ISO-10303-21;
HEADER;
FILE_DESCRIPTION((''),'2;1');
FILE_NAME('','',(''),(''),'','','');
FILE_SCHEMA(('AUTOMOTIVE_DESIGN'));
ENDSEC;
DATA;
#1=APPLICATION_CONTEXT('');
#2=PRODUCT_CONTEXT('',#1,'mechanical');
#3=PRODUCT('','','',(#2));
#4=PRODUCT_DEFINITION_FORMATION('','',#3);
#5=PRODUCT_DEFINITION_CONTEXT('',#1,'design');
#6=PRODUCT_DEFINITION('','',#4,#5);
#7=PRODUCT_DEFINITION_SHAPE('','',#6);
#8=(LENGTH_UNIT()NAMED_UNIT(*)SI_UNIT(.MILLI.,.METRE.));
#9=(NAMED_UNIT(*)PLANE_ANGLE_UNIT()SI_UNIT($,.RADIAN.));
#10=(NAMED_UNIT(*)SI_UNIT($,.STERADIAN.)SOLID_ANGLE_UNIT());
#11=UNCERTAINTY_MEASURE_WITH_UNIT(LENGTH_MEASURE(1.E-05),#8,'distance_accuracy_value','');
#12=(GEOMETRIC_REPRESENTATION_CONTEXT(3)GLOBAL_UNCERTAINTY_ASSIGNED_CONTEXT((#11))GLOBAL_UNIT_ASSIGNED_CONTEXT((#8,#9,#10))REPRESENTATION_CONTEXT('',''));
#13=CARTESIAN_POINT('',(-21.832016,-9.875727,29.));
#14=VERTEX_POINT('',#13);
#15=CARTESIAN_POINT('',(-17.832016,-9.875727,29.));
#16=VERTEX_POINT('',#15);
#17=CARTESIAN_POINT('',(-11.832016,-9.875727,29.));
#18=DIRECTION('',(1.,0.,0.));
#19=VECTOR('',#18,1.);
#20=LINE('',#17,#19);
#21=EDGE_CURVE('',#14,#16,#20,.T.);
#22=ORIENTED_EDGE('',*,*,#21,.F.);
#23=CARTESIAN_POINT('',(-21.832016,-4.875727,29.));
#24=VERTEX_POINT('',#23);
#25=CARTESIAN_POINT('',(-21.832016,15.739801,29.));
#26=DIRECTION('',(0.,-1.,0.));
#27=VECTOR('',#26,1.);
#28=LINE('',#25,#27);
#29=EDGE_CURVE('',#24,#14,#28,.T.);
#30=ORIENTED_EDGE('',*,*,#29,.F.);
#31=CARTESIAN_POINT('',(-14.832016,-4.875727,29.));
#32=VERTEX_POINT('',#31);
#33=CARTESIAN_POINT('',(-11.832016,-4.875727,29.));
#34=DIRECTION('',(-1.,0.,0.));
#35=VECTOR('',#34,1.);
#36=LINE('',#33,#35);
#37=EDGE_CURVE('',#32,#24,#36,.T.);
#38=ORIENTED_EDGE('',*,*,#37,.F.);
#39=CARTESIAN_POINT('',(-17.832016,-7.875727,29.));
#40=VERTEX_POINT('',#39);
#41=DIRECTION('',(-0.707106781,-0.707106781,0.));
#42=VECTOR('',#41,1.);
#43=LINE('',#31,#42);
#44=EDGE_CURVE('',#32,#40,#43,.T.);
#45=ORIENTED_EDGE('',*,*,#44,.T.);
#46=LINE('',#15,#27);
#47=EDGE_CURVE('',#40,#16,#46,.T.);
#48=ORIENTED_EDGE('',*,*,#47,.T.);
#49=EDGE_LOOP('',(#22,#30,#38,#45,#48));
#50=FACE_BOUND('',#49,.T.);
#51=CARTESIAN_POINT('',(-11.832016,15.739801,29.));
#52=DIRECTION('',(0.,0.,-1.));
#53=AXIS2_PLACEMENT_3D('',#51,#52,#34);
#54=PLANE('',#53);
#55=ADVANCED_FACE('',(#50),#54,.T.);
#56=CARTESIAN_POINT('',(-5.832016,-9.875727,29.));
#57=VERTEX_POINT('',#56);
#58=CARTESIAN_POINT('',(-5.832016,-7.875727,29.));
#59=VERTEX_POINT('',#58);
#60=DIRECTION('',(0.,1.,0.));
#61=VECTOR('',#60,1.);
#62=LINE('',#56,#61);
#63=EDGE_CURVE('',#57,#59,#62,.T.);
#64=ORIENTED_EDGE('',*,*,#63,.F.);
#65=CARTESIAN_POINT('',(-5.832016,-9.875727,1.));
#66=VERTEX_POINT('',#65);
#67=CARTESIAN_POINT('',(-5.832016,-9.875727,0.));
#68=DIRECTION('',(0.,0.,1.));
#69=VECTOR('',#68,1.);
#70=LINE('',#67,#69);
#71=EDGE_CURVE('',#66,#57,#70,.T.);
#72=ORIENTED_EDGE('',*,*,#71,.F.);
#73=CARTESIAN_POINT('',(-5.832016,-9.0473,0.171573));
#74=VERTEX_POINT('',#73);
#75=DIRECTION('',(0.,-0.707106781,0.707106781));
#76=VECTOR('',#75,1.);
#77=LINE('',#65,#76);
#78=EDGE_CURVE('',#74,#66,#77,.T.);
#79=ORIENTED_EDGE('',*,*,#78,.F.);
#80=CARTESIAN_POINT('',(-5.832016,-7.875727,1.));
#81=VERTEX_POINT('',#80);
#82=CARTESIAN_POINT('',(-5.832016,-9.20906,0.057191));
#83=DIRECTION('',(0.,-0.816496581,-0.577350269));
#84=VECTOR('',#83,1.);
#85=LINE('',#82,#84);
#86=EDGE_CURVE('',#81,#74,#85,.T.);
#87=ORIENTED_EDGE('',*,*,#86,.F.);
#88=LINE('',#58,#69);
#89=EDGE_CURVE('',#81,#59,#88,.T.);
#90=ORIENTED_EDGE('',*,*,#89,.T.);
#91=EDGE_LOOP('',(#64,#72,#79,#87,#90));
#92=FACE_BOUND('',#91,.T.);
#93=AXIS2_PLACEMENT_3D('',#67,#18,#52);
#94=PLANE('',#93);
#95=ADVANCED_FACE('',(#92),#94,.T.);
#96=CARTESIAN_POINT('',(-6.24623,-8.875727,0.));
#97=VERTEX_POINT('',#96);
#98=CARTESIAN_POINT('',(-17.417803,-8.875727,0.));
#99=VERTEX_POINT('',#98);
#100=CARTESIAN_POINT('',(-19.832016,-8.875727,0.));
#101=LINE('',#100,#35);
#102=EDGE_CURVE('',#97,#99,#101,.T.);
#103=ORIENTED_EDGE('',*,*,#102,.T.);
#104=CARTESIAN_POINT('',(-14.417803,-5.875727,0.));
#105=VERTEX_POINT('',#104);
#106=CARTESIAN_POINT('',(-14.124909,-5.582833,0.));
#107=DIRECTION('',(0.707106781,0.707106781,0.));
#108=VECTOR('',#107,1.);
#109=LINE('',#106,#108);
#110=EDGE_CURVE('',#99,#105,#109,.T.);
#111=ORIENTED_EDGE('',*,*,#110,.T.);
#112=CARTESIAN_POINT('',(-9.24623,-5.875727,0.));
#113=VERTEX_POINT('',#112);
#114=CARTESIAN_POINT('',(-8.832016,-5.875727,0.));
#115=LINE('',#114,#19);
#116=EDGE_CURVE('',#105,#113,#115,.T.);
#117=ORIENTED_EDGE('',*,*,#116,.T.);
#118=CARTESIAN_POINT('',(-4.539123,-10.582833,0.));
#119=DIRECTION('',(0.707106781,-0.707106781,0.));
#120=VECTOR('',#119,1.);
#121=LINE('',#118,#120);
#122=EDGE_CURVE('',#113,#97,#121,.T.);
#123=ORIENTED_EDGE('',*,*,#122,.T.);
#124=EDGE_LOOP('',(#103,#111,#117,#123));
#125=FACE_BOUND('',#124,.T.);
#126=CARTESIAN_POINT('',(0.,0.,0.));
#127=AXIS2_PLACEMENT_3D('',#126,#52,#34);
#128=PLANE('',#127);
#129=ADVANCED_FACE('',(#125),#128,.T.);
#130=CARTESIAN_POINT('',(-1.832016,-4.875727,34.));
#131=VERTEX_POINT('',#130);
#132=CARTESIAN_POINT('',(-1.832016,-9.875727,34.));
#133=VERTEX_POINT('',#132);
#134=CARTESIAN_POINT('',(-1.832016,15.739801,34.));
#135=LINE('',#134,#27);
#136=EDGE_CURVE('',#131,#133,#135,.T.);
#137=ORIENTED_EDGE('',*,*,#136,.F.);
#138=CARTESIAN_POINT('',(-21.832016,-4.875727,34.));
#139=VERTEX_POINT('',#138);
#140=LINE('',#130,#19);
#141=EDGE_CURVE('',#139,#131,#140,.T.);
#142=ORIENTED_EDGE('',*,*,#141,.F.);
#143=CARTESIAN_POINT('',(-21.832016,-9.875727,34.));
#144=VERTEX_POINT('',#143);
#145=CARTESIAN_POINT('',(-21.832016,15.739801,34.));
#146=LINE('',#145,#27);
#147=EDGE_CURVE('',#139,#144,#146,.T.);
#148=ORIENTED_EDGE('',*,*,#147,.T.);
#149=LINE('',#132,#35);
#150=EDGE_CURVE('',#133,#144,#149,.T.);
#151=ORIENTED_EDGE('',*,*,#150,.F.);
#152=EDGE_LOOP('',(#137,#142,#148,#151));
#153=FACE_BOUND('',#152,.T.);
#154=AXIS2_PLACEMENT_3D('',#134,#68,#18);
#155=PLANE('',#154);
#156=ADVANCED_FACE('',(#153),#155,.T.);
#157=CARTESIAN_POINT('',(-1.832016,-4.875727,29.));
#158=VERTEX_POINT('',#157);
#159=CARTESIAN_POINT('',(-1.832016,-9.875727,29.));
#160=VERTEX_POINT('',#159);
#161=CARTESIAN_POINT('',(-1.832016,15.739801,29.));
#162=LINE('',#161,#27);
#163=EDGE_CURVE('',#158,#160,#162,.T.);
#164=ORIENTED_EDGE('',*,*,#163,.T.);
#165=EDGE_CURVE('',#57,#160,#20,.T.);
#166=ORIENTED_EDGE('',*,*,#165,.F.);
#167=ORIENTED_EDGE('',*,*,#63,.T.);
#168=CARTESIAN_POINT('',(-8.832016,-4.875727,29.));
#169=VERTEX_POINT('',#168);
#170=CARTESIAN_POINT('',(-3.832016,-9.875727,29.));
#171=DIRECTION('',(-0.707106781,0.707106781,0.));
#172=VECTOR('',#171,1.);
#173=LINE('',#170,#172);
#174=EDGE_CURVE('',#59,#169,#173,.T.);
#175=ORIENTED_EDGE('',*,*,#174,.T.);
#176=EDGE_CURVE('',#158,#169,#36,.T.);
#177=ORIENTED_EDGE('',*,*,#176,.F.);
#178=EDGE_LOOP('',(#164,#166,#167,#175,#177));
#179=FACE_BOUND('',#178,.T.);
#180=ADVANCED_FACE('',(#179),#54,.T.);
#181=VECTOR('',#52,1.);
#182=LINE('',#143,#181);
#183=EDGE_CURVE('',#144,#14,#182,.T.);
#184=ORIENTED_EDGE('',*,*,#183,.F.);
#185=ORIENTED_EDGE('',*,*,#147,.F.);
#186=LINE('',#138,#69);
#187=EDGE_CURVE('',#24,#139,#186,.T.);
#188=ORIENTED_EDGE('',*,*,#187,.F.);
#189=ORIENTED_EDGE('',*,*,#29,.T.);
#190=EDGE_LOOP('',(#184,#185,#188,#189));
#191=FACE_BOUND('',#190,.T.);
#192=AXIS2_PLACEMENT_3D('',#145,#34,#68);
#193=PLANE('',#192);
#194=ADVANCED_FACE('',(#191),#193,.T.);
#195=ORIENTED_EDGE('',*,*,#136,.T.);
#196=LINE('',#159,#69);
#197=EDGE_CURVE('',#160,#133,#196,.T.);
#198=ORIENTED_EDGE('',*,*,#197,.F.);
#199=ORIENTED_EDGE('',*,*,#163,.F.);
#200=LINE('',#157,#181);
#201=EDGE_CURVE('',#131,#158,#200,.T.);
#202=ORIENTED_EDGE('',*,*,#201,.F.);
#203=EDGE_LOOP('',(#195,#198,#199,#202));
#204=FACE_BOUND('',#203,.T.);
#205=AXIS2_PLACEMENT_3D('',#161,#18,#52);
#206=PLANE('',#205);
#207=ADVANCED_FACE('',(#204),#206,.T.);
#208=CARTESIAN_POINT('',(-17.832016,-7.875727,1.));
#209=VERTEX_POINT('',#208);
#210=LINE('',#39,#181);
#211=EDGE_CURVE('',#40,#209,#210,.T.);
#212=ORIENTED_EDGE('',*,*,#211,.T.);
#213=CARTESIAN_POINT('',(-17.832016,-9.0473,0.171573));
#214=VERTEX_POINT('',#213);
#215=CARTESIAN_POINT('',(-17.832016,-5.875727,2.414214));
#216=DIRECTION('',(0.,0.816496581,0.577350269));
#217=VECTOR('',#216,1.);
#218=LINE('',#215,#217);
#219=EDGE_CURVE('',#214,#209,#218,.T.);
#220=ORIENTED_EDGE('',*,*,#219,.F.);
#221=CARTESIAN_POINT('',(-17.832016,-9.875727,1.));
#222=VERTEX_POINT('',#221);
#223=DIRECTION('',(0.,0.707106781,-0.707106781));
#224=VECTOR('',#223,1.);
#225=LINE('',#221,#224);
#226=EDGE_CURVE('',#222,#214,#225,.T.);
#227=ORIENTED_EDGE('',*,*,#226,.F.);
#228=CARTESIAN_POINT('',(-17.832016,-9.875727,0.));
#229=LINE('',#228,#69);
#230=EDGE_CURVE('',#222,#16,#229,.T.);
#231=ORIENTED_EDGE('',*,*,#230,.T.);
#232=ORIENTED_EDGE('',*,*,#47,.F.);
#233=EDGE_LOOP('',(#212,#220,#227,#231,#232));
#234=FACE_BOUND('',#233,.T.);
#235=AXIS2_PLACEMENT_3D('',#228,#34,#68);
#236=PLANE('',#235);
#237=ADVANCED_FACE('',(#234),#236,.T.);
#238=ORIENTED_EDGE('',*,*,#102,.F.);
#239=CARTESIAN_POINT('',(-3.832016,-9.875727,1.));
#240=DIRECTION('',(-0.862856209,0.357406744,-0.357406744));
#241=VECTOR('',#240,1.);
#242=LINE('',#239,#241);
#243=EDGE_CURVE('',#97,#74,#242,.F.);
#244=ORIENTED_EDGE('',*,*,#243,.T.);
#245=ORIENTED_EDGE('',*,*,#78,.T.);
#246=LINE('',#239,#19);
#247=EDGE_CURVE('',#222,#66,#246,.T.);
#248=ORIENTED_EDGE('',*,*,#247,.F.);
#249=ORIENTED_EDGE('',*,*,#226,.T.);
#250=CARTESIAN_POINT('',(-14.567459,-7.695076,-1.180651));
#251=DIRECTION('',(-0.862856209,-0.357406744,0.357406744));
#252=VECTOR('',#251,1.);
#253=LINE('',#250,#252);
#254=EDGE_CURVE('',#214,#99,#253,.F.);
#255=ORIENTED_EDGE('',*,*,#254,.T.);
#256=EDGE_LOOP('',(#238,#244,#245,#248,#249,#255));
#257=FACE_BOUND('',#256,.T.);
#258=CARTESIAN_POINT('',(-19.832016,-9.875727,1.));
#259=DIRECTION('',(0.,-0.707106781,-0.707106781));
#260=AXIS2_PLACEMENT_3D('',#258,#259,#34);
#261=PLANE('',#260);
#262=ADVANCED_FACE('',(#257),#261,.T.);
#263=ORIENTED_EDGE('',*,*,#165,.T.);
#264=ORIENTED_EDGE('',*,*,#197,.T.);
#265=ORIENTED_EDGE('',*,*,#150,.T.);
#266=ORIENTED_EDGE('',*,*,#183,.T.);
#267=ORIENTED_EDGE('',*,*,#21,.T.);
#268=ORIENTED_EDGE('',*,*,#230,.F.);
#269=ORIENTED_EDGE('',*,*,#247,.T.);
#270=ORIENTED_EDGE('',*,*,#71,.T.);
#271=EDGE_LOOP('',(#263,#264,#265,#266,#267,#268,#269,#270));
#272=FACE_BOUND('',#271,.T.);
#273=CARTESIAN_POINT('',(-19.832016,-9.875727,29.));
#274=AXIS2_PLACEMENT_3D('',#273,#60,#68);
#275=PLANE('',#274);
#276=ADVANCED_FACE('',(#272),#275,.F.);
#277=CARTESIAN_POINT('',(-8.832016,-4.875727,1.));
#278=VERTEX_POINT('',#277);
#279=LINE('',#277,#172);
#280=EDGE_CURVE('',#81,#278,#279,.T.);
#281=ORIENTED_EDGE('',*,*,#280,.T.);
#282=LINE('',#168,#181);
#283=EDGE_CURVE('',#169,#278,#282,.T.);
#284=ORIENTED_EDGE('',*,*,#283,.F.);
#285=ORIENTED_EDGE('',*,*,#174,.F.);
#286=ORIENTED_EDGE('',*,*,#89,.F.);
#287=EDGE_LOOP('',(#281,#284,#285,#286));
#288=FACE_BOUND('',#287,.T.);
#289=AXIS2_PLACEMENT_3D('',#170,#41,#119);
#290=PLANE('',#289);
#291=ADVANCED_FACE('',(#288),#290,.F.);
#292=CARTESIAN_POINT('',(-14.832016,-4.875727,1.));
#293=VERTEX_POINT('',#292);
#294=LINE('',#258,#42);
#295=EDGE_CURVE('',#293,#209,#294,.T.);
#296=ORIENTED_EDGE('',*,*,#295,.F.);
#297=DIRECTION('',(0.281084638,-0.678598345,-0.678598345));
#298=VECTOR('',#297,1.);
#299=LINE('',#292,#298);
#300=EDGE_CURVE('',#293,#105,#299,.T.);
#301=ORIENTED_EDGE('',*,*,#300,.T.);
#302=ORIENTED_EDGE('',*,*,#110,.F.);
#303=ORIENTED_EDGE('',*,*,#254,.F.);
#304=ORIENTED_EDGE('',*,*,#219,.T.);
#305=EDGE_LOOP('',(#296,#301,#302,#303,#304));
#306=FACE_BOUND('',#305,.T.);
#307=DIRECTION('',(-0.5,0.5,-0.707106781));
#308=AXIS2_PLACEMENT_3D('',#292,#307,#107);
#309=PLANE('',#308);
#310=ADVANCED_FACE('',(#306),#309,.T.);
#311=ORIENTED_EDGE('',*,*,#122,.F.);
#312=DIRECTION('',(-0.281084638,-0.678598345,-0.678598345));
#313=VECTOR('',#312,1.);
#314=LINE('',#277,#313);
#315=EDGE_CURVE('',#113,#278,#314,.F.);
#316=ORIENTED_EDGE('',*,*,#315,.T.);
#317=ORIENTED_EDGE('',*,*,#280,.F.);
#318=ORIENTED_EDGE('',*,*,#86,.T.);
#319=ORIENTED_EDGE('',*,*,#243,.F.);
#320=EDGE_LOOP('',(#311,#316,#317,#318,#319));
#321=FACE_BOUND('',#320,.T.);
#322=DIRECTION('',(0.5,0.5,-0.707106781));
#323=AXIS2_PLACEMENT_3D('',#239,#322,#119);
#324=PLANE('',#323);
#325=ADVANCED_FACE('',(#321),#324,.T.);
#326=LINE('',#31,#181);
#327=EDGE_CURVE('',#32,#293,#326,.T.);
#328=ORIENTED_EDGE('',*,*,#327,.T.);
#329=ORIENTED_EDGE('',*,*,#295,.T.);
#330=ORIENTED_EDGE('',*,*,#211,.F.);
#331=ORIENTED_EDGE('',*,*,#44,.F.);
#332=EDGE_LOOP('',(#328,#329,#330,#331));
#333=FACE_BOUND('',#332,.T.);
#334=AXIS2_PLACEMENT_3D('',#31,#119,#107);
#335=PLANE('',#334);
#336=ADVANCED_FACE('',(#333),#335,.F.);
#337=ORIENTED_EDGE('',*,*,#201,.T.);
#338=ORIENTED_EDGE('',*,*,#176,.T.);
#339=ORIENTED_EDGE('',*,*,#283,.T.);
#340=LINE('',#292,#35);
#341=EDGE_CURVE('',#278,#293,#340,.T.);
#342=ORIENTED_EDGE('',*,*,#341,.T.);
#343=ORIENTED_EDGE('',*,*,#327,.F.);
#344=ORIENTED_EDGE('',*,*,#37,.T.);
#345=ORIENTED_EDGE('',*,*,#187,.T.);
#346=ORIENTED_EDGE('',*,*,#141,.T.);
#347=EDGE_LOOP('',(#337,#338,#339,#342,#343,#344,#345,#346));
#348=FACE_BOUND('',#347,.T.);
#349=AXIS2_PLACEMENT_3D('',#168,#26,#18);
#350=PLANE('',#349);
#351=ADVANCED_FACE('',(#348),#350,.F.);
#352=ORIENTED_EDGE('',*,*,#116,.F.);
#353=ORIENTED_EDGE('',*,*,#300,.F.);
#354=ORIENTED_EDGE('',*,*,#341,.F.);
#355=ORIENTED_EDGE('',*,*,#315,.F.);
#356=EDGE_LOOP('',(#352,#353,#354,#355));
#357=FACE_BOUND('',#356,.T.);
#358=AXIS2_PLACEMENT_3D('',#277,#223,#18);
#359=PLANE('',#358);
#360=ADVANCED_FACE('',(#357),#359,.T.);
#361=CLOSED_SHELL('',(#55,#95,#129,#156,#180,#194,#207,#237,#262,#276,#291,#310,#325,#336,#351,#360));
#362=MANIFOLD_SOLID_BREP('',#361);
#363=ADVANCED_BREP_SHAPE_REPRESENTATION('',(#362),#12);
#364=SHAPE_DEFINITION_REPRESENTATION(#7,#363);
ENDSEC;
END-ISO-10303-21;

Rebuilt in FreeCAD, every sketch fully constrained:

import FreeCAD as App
import Part
import Sketcher


def edges_at(feature, points):
    """Names of the edges that pass closest to the given points."""
    edges = feature.Shape.Edges
    near = lambda p: min(range(len(edges)), key=lambda i: edges[i].distToShape(Part.Vertex(*p))[0])
    return sorted({f"Edge{near(p) + 1}" for p in points})

doc = App.newDocument("Part")
body = doc.addObject("PartDesign::Body", "Body")

# Sketch on XY plane
sketch1 = doc.addObject("Sketcher::SketchObject", "Sketch")
body.addObject(sketch1)
sketch1.AttachmentSupport = (doc.XY_Plane, [""])
sketch1.MapMode = "FlatFace"
sketch1.addGeometry([
    Part.LineSegment(App.Vector(-20, -10, 0), App.Vector(-4, -10, 0)),
    Part.LineSegment(App.Vector(-4, -10, 0), App.Vector(-9, -5, 0)),
    Part.LineSegment(App.Vector(-9, -5, 0), App.Vector(-15, -5, 0)),
    Part.LineSegment(App.Vector(-15, -5, 0), App.Vector(-20, -10, 0)),
], False)
sketch1.addConstraint([
    Sketcher.Constraint("Coincident", 0, 2, 1, 1),
    Sketcher.Constraint("Coincident", 1, 2, 2, 1),
    Sketcher.Constraint("Coincident", 2, 2, 3, 1),
    Sketcher.Constraint("Coincident", 3, 2, 0, 1),
    Sketcher.Constraint("Horizontal", 0),
    Sketcher.Constraint("Horizontal", 2),
    Sketcher.Constraint("Perpendicular", 1, 3),
    Sketcher.Constraint("Equal", 1, 3),
    Sketcher.Constraint("DistanceX", 0, 1, 0, 2, 16.0),
    Sketcher.Constraint("DistanceX", 2, 2, 2, 1, 6.0),
    Sketcher.Constraint("DistanceX", 0, 2, -1, 1, 3.832016),
    Sketcher.Constraint("DistanceY", 0, 2, -1, 1, 9.875727),
])
pad1 = doc.addObject("PartDesign::Pad", "Pad")
body.addObject(pad1)
pad1.Profile = sketch1
pad1.Length = 29

# Sketch on XZ plane
sketch2 = doc.addObject("Sketcher::SketchObject", "Sketch001")
body.addObject(sketch2)
sketch2.AttachmentSupport = (doc.XZ_Plane, [""])
sketch2.MapMode = "FlatFace"
sketch2.AttachmentOffset = App.Placement(App.Vector(0, 0, 9.875727), App.Rotation())
sketch2.addGeometry([
    Part.LineSegment(App.Vector(-2, 29, 0), App.Vector(-2, 34, 0)),
    Part.LineSegment(App.Vector(-2, 34, 0), App.Vector(-22, 34, 0)),
    Part.LineSegment(App.Vector(-22, 34, 0), App.Vector(-22, 29, 0)),
    Part.LineSegment(App.Vector(-22, 29, 0), App.Vector(-2, 29, 0)),
], False)
sketch2.addConstraint([
    Sketcher.Constraint("Coincident", 0, 2, 1, 1),
    Sketcher.Constraint("Coincident", 1, 2, 2, 1),
    Sketcher.Constraint("Coincident", 2, 2, 3, 1),
    Sketcher.Constraint("Coincident", 3, 2, 0, 1),
    Sketcher.Constraint("Vertical", 0),
    Sketcher.Constraint("Horizontal", 1),
    Sketcher.Constraint("Vertical", 2),
    Sketcher.Constraint("Horizontal", 3),
    Sketcher.Constraint("DistanceX", 1, 2, 1, 1, 20.0),
    Sketcher.Constraint("DistanceY", 0, 1, 0, 2, 5.0),
    Sketcher.Constraint("DistanceY", -1, 1, 0, 2, 34.0),
    Sketcher.Constraint("DistanceX", 0, 2, -1, 1, 1.832016),
])
pad2 = doc.addObject("PartDesign::Pad", "Pad001")
body.addObject(pad2)
pad2.Profile = sketch2
pad2.Length = 5
pad2.Reversed = True
doc.recompute()

chamfer = doc.addObject("PartDesign::Chamfer", "Chamfer")
body.addObject(chamfer)
chamfer.Base = (pad2, edges_at(pad2, [
    (-11.832, -4.876, 0),
    (-6.332, -7.376, 0),
    (-11.832, -9.876, 0),
    (-17.332, -7.376, 0),
]))
chamfer.Size = 1

# Sketch on XY plane
sketch3 = doc.addObject("Sketcher::SketchObject", "Sketch002")
body.addObject(sketch3)
sketch3.AttachmentSupport = (doc.XY_Plane, [""])
sketch3.MapMode = "FlatFace"
sketch3.AttachmentOffset = App.Placement(App.Vector(0, 0, 29), App.Rotation())
sketch3.addGeometry([
    Part.LineSegment(App.Vector(-3.8, -6.8, 0), App.Vector(-3.8, -9.9, 0)),  # 0
    Part.LineSegment(App.Vector(-3.8, -9.9, 0), App.Vector(-5.8, -9.9, 0)),  # 1
    Part.LineSegment(App.Vector(-5.8, -9.9, 0), App.Vector(-5.8, -6.8, 0)),  # 2
    Part.LineSegment(App.Vector(-5.8, -6.8, 0), App.Vector(-3.8, -6.8, 0)),  # 3
    Part.LineSegment(App.Vector(-17.8, -6.5, 0), App.Vector(-17.8, -9.9, 0)),  # 4
    Part.LineSegment(App.Vector(-17.8, -9.9, 0), App.Vector(-19.8, -9.9, 0)),  # 5
    Part.LineSegment(App.Vector(-19.8, -9.9, 0), App.Vector(-19.8, -6.5, 0)),  # 6
    Part.LineSegment(App.Vector(-19.8, -6.5, 0), App.Vector(-17.8, -6.5, 0)),  # 7
], False)
sketch3.addConstraint([
    Sketcher.Constraint("Coincident", 0, 2, 1, 1),
    Sketcher.Constraint("Coincident", 1, 2, 2, 1),
    Sketcher.Constraint("Coincident", 2, 2, 3, 1),
    Sketcher.Constraint("Coincident", 3, 2, 0, 1),
    Sketcher.Constraint("Coincident", 4, 2, 5, 1),
    Sketcher.Constraint("Coincident", 5, 2, 6, 1),
    Sketcher.Constraint("Coincident", 6, 2, 7, 1),
    Sketcher.Constraint("Coincident", 7, 2, 4, 1),
    Sketcher.Constraint("Vertical", 0),
    Sketcher.Constraint("Horizontal", 1),
    Sketcher.Constraint("Vertical", 2),
    Sketcher.Constraint("Horizontal", 3),
    Sketcher.Constraint("Vertical", 4),
    Sketcher.Constraint("Horizontal", 5),
    Sketcher.Constraint("Vertical", 6),
    Sketcher.Constraint("Horizontal", 7),
    Sketcher.Constraint("Horizontal", 1, 2, 4, 2),
    Sketcher.Constraint("Equal", 3, 5),
    Sketcher.Constraint("DistanceX", 1, 2, 1, 1, 2.0),
    Sketcher.Constraint("DistanceX", 4, 2, 1, 2, 12.0),
    Sketcher.Constraint("DistanceY", 4, 2, 4, 1, 3.32617),
    Sketcher.Constraint("DistanceY", 0, 2, 0, 1, 3.104007),
    Sketcher.Constraint("DistanceY", 2, 2, -1, 1, 6.77172),
    Sketcher.Constraint("DistanceX", 0, 2, -1, 1, 3.832016),
])
pocket1 = doc.addObject("PartDesign::Pocket", "Pocket")
body.addObject(pocket1)
pocket1.Profile = sketch3
pocket1.Type = "ThroughAll"

doc.recompute()
